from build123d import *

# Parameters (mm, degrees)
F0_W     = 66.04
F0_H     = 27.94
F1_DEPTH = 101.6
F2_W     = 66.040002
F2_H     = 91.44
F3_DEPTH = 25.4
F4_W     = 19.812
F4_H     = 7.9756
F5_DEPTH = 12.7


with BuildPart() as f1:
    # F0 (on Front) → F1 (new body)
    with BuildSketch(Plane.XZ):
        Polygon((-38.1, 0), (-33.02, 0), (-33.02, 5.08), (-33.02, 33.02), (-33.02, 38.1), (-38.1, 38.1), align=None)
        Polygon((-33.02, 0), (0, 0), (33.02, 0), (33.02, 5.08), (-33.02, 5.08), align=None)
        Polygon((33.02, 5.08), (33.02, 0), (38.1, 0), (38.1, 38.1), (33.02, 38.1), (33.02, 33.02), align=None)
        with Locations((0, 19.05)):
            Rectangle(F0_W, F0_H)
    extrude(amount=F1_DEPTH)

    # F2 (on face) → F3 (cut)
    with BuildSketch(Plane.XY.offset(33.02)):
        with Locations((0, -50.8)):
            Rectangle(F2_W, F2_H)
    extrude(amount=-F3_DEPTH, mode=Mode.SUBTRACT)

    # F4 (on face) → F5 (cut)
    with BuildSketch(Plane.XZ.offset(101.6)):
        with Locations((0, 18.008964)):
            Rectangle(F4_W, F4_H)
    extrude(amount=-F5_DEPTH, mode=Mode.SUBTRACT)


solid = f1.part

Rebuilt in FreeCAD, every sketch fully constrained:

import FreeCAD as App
import Part
import Sketcher

V = App.Vector
Q = App.Units.Quantity

doc = App.newDocument("Part")
body = doc.addObject("PartDesign::Body", "Body")

sketch1 = body.newObject("Sketcher::SketchObject", "Sketch")
sketch1.AttachmentSupport = (doc.getObject("XZ_Plane"), [""])
sketch1.MapMode = "FlatFace"
sketch1.addGeometry([
    Part.LineSegment(V(-38, 0, 0), V(38, 0, 0)),
    Part.LineSegment(V(38, 0, 0), V(38, 38, 0)),
    Part.LineSegment(V(38, 38, 0), V(33, 38, 0)),
    Part.LineSegment(V(33, 38, 0), V(33, 33, 0)),
    Part.LineSegment(V(33, 33, 0), V(-33, 33, 0)),
    Part.LineSegment(V(-33, 33, 0), V(-33, 38, 0)),
    Part.LineSegment(V(-33, 38, 0), V(-38, 38, 0)),
    Part.LineSegment(V(-38, 38, 0), V(-38, 0, 0)),
], False)
sketch1.addConstraint([
    Sketcher.Constraint("Coincident", 0, 2, 1, 1),
    Sketcher.Constraint("Coincident", 1, 2, 2, 1),
    Sketcher.Constraint("Coincident", 2, 2, 3, 1),
    Sketcher.Constraint("Coincident", 3, 2, 4, 1),
    Sketcher.Constraint("Coincident", 4, 2, 5, 1),
    Sketcher.Constraint("Coincident", 5, 2, 6, 1),
    Sketcher.Constraint("Coincident", 6, 2, 7, 1),
    Sketcher.Constraint("Coincident", 7, 2, 0, 1),
    Sketcher.Constraint("Horizontal", 0),
    Sketcher.Constraint("Vertical", 1),
    Sketcher.Constraint("Horizontal", 2),
    Sketcher.Constraint("Vertical", 3),
    Sketcher.Constraint("Horizontal", 4),
    Sketcher.Constraint("Vertical", 5),
    Sketcher.Constraint("Horizontal", 6),
    Sketcher.Constraint("Vertical", 7),
    Sketcher.Constraint("Symmetric", 0, 2, 7, 2, -1, 1),
    Sketcher.Constraint("Symmetric", 2, 2, 5, 2, -2),
    Sketcher.Constraint("Equal", 6, 3),
    Sketcher.Constraint("DistanceX", 0, 1, 0, 2, Q("3 in")),
    Sketcher.Constraint("DistanceX", 2, 2, 2, 1, Q("0.2 in")),
    Sketcher.Constraint("DistanceY", 1, 1, 1, 2, Q("1.5 in")),
])
pad1 = body.newObject("PartDesign::Pad", "Pad")
pad1.Profile = sketch1
pad1.Length = Q("4 in")

sketch2 = body.newObject("Sketcher::SketchObject", "Sketch001")
sketch2.AttachmentSupport = (doc.getObject("XY_Plane"), [""])
sketch2.MapMode = "FlatFace"
sketch2.AttachmentOffset = App.Placement(V(0, 0, 1.3 * 25.4), App.Rotation())
sketch2.addGeometry([
    Part.LineSegment(V(-33, -5, 0), V(-33, -97, 0)),
    Part.LineSegment(V(-33, -97, 0), V(33, -97, 0)),
    Part.LineSegment(V(33, -97, 0), V(33, -5, 0)),
    Part.LineSegment(V(33, -5, 0), V(-33, -5, 0)),
], False)
sketch2.addConstraint([
    Sketcher.Constraint("Coincident", 0, 2, 1, 1),
    Sketcher.Constraint("Coincident", 1, 2, 2, 1),
    Sketcher.Constraint("Coincident", 2, 2, 3, 1),
    Sketcher.Constraint("Coincident", 3, 2, 0, 1),
    Sketcher.Constraint("Vertical", 0),
    Sketcher.Constraint("Horizontal", 1),
    Sketcher.Constraint("Vertical", 2),
    Sketcher.Constraint("Horizontal", 3),
    Sketcher.Constraint("DistanceX", 1, 1, 1, 2, Q("2.6000001 in")),
    Sketcher.Constraint("DistanceY", 0, 2, 0, 1, Q("3.6 in")),
    Sketcher.Constraint("DistanceX", 0, 2, -1, 1, Q("1.3 in")),
    Sketcher.Constraint("DistanceY", 0, 2, -1, 1, Q("3.8 in")),
])
pocket1 = body.newObject("PartDesign::Pocket", "Pocket")
pocket1.Profile = sketch2
pocket1.Length = Q("1 in")

sketch3 = body.newObject("Sketcher::SketchObject", "Sketch002")
sketch3.AttachmentSupport = (doc.getObject("XZ_Plane"), [""])
sketch3.MapMode = "FlatFace"
sketch3.AttachmentOffset = App.Placement(V(0, 0, 4 * 25.4), App.Rotation())
sketch3.addGeometry([
    Part.LineSegment(V(-10, 22, 0), V(-10, 14, 0)),
    Part.LineSegment(V(-10, 14, 0), V(10, 14, 0)),
    Part.LineSegment(V(10, 14, 0), V(10, 22, 0)),
    Part.LineSegment(V(10, 22, 0), V(-10, 22, 0)),
], False)
sketch3.addConstraint([
    Sketcher.Constraint("Coincident", 0, 2, 1, 1),
    Sketcher.Constraint("Coincident", 1, 2, 2, 1),
    Sketcher.Constraint("Coincident", 2, 2, 3, 1),
    Sketcher.Constraint("Coincident", 3, 2, 0, 1),
    Sketcher.Constraint("Vertical", 0),
    Sketcher.Constraint("Horizontal", 1),
    Sketcher.Constraint("Vertical", 2),
    Sketcher.Constraint("Horizontal", 3),
    Sketcher.Constraint("DistanceX", 1, 1, 1, 2, Q("0.78 in")),
    Sketcher.Constraint("DistanceY", 0, 2, 0, 1, Q("0.314 in")),
    Sketcher.Constraint("DistanceX", 0, 2, -1, 1, Q("0.39 in")),
    Sketcher.Constraint("DistanceY", -1, 1, 0, 2, Q("14.021164 mm")),
])
pocket2 = body.newObject("PartDesign::Pocket", "Pocket001")
pocket2.Profile = sketch3
pocket2.Length = Q("0.5 in")

doc.recompute()
